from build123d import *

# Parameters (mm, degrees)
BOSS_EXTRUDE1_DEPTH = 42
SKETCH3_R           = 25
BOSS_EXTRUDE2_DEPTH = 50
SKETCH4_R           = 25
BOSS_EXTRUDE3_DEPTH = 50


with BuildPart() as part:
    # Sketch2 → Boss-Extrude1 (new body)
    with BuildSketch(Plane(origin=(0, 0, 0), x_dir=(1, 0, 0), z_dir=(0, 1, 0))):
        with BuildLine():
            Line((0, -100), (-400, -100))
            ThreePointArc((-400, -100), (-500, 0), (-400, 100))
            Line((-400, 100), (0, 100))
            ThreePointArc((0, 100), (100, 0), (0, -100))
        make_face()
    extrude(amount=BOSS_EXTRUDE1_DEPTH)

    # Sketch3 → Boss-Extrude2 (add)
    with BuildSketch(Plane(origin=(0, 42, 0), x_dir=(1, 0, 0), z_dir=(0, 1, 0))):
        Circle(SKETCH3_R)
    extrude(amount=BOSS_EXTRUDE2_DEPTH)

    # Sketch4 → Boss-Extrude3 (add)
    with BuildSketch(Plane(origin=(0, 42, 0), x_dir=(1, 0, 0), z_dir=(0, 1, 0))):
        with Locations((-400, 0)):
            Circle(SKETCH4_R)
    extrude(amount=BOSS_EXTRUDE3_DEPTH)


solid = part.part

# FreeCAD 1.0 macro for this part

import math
import FreeCAD as App
import Part
import Sketcher
from FreeCAD import Vector

doc = App.newDocument("Part")
body = doc.addObject("PartDesign::Body", "Body")

# Sketch on XZ plane
sketch1 = body.newObject("Sketcher::SketchObject", "Sketch")
sketch1.AttachmentSupport = (doc.getObject("XZ_Plane"), [""])
sketch1.MapMode = "FlatFace"
sketch1.addGeometry(Part.LineSegment(Vector(-400, 100, 0), Vector(0, 100, 0)), False)
sketch1.addGeometry(Part.ArcOfCircle(Part.Circle(Vector(0, 0, 0), Vector(0, 0, 1), 100), math.radians(-90), math.radians(90)), False)
sketch1.addGeometry(Part.LineSegment(Vector(0, -100, 0), Vector(-400, -100, 0)), False)
sketch1.addGeometry(Part.ArcOfCircle(Part.Circle(Vector(-400, 0, 0), Vector(0, 0, 1), 100), math.radians(90), math.radians(270)), False)
sketch1.addConstraint(Sketcher.Constraint("Tangent", 0, 2, 1, 2))
sketch1.addConstraint(Sketcher.Constraint("Tangent", 1, 1, 2, 1))
sketch1.addConstraint(Sketcher.Constraint("Tangent", 2, 2, 3, 2))
sketch1.addConstraint(Sketcher.Constraint("Tangent", 3, 1, 0, 1))
sketch1.addConstraint(Sketcher.Constraint("Horizontal", 0))
sketch1.addConstraint(Sketcher.Constraint("Horizontal", 2))
sketch1.addConstraint(Sketcher.Constraint("Coincident", 1, 3, -1, 1))
sketch1.addConstraint(Sketcher.Constraint("Radius", 1, 100.0))
sketch1.addConstraint(Sketcher.Constraint("DistanceX", 0, 1, 0, 2, 400.0))
pad1 = body.newObject("PartDesign::Pad", "Pad")
pad1.Profile = sketch1
pad1.Length = 42
pad1.Reversed = True

# Sketch on XZ plane
sketch2 = body.newObject("Sketcher::SketchObject", "Sketch001")
sketch2.AttachmentSupport = (doc.getObject("XZ_Plane"), [""])
sketch2.MapMode = "FlatFace"
sketch2.AttachmentOffset = App.Placement(Vector(0, 0, -42), App.Rotation())
sketch2.addGeometry(Part.Circle(Vector(0, 0, 0), Vector(0, 0, 1), 25), False)
sketch2.addConstraint(Sketcher.Constraint("Coincident", 0, 3, -1, 1))
sketch2.addConstraint(Sketcher.Constraint("Diameter", 0, 50.0))
pad2 = body.newObject("PartDesign::Pad", "Pad001")
pad2.Profile = sketch2
pad2.Length = 50
pad2.Reversed = True

# Sketch on XZ plane
sketch3 = body.newObject("Sketcher::SketchObject", "Sketch002")
sketch3.AttachmentSupport = (doc.getObject("XZ_Plane"), [""])
sketch3.MapMode = "FlatFace"
sketch3.AttachmentOffset = App.Placement(Vector(0, 0, -42), App.Rotation())
sketch3.addGeometry(Part.Circle(Vector(-400, 0, 0), Vector(0, 0, 1), 25), False)
sketch3.addConstraint(Sketcher.Constraint("PointOnObject", 0, 3, -1))
sketch3.addConstraint(Sketcher.Constraint("Diameter", 0, 50.0))
sketch3.addConstraint(Sketcher.Constraint("DistanceX", 0, 3, -1, 1, 400.0))
pad3 = body.newObject("PartDesign::Pad", "Pad002")
pad3.Profile = sketch3
pad3.Length = 50
pad3.Reversed = True

doc.recompute()
